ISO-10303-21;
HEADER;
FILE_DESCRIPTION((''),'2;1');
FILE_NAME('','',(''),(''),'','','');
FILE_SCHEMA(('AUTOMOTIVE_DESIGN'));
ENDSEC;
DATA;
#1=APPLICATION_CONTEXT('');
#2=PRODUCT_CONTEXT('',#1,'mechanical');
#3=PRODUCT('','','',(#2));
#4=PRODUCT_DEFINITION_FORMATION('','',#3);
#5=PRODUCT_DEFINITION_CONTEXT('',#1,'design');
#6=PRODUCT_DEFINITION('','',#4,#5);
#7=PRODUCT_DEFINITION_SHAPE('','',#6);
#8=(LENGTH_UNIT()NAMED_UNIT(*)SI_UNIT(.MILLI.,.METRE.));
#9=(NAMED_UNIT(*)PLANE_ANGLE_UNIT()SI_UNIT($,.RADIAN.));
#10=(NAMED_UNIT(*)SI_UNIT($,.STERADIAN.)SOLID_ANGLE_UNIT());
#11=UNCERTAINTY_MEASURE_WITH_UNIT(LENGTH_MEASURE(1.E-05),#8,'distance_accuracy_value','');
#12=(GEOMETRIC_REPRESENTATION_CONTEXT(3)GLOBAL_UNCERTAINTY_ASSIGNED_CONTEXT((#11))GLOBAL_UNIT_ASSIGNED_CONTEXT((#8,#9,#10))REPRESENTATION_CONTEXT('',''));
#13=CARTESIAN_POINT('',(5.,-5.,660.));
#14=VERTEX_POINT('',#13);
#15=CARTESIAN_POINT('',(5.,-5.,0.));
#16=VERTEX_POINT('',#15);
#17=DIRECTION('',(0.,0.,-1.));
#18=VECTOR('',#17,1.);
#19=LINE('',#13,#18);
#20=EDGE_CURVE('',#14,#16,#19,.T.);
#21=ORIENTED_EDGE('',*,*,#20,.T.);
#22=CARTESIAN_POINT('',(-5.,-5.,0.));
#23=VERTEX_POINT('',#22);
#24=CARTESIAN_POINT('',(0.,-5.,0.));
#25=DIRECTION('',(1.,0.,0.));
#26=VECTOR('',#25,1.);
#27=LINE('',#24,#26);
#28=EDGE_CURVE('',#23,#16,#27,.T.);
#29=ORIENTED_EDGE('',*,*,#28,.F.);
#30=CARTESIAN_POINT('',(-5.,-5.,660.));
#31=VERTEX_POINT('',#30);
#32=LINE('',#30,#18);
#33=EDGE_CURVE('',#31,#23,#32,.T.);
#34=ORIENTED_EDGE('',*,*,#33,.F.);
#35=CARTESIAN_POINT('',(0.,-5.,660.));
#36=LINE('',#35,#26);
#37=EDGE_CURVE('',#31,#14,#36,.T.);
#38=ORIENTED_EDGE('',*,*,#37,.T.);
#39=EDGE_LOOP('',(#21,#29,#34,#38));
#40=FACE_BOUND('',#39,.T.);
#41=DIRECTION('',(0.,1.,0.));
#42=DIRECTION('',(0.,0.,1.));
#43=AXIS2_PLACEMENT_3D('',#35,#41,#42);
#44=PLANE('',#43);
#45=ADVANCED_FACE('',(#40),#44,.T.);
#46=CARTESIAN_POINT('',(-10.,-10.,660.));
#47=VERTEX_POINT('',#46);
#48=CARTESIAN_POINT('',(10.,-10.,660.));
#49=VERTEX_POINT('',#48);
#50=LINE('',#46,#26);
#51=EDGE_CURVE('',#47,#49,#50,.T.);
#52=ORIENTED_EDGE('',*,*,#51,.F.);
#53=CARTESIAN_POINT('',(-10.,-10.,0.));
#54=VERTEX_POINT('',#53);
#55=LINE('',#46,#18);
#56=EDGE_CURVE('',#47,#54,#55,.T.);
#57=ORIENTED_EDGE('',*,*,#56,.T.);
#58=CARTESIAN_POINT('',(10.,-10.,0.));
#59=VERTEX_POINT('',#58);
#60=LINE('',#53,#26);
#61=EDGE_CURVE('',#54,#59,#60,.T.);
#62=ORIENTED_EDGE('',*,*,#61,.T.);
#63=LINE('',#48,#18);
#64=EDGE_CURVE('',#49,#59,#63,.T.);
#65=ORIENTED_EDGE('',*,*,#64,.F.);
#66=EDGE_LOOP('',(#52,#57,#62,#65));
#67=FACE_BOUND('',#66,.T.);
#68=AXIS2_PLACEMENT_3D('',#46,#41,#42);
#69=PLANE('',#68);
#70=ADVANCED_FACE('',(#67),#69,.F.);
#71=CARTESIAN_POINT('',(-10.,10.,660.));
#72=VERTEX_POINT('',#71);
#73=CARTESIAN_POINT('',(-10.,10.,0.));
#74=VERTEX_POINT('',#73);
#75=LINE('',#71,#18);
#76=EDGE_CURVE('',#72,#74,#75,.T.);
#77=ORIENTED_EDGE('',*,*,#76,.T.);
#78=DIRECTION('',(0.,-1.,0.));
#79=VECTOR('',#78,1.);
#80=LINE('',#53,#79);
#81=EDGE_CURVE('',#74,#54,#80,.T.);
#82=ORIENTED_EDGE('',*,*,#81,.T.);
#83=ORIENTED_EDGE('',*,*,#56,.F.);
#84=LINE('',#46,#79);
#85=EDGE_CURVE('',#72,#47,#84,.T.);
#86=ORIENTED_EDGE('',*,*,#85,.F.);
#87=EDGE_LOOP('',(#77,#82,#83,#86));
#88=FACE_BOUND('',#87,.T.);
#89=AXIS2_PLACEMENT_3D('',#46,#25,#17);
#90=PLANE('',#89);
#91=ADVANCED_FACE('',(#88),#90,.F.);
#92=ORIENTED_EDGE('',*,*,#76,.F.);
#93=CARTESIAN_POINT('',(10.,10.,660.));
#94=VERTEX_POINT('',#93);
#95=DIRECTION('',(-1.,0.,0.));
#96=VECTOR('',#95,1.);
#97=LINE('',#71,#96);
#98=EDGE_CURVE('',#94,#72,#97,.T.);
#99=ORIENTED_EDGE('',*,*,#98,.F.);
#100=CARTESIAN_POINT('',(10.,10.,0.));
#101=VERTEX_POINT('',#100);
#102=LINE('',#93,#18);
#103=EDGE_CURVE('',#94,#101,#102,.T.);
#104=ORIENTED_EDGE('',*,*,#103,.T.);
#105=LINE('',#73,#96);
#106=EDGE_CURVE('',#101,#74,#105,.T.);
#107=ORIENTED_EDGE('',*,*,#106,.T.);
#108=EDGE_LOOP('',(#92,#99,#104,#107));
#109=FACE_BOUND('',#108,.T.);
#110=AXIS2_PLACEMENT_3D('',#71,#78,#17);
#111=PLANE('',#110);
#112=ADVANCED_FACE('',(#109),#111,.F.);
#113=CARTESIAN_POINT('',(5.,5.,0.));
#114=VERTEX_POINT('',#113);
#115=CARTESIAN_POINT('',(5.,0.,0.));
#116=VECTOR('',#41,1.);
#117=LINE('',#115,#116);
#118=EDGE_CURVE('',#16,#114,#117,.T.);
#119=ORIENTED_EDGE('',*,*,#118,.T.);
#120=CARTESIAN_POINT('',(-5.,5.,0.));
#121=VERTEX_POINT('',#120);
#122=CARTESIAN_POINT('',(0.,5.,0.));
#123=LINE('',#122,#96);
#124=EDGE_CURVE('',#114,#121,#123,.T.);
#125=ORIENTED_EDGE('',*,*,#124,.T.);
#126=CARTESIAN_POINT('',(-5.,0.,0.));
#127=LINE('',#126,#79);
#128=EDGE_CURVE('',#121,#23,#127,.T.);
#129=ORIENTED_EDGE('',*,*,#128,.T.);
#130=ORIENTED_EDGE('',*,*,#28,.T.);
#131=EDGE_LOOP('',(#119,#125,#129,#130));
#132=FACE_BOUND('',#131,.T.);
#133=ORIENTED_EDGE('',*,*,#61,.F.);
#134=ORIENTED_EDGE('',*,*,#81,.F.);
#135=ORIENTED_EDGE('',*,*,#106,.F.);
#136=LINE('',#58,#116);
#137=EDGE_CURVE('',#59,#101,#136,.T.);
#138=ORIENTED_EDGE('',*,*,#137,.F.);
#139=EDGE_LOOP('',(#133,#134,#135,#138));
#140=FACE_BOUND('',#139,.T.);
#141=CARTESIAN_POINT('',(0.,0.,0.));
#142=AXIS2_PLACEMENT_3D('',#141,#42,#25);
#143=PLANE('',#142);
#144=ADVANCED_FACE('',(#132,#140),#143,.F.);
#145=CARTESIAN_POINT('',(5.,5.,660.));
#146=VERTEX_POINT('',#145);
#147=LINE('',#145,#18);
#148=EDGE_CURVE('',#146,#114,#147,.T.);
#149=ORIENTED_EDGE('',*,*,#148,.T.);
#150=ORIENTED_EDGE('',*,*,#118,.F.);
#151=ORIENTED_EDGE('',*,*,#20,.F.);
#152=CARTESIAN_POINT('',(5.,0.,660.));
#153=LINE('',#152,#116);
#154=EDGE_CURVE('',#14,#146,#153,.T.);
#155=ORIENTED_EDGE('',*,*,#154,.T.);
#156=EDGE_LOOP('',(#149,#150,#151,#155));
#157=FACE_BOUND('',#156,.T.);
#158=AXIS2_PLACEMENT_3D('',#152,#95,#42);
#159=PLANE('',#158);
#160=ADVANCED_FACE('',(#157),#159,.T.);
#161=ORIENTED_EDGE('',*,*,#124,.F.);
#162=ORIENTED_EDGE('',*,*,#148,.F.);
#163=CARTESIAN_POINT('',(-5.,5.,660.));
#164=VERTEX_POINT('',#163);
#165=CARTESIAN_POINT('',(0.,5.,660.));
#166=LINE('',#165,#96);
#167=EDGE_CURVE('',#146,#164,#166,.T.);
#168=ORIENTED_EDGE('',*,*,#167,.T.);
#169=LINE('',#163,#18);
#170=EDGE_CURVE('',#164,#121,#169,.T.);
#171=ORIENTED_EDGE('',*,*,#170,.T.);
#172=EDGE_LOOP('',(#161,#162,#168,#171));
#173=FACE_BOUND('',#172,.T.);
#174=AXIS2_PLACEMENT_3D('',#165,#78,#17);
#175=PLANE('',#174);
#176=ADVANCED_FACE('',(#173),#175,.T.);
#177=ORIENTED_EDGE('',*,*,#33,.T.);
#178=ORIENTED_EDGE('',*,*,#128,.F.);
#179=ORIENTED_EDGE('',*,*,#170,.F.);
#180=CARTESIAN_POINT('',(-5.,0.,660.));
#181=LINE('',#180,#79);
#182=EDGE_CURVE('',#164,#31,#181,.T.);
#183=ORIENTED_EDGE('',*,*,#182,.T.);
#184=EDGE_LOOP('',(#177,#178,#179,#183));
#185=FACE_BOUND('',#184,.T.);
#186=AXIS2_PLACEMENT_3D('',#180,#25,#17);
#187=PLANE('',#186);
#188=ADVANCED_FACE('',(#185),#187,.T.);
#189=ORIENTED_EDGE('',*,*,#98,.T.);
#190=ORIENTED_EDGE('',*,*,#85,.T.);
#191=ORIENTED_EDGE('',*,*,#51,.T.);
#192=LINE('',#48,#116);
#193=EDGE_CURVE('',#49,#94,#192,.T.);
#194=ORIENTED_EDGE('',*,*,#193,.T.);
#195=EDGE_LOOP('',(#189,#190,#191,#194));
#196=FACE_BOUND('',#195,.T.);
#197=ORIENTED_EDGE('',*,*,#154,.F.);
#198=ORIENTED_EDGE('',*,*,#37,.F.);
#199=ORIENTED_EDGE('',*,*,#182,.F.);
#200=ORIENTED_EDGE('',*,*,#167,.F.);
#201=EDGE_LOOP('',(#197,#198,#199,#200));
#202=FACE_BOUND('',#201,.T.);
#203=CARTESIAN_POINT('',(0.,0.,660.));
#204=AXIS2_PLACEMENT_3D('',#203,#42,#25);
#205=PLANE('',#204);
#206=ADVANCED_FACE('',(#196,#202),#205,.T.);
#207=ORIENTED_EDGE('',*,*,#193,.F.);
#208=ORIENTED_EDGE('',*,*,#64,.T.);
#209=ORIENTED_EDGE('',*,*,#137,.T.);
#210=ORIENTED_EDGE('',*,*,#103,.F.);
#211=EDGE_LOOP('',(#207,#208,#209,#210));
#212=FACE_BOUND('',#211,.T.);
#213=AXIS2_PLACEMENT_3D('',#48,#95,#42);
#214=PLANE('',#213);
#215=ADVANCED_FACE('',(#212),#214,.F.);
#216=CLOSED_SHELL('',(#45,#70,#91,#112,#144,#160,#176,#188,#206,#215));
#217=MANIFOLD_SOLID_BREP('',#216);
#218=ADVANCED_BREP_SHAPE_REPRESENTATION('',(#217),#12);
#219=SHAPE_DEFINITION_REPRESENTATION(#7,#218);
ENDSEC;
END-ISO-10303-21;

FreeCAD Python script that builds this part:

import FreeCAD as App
import Part
import Sketcher
from FreeCAD import Vector
Q = App.Units.Quantity


def add_polygon(sketch, points):
    """Adds a closed chain of lines whose ends are joined by coincident constraints."""
    first, n = sketch.GeometryCount, len(points)
    for a, b in zip(points, points[1:] + points[:1]):
        sketch.addGeometry(Part.LineSegment(App.Vector(*a, 0), App.Vector(*b, 0)), False)
    for i in range(n):
        sketch.addConstraint(Sketcher.Constraint("Coincident", first + i, 2, first + (i + 1) % n, 1))

doc = App.newDocument("Part")
params = doc.addObject("Spreadsheet::Sheet", "Params")
for row, (alias, value) in enumerate([
    ("sketch1_width", "20 mm"),
    ("sketch1_width2", "10 mm"),
    ("pad1_length", "660 mm"),
], start=1):
    params.set(f"A{row}", alias)
    params.set(f"B{row}", "=" + value)
    params.setAlias(f"B{row}", alias)

body = doc.addObject("PartDesign::Body", "Body")

# Sketch on XY plane
sketch1 = doc.addObject("Sketcher::SketchObject", "Sketch")
body.addObject(sketch1)
sketch1.AttachmentSupport = (doc.XY_Plane, [""])
sketch1.MapMode = "FlatFace"
add_polygon(sketch1, [(-10, 10), (-10, -10), (10, -10), (10, 10)])  # lines 0-3
add_polygon(sketch1, [(5, -5), (-5, -5), (-5, 5), (5, 5)])  # lines 4-7
sketch1.addConstraint([
    Sketcher.Constraint("Vertical", 0),
    Sketcher.Constraint("Horizontal", 1),
    Sketcher.Constraint("Vertical", 2),
    Sketcher.Constraint("Horizontal", 3),
    Sketcher.Constraint("Horizontal", 4),
    Sketcher.Constraint("Vertical", 5),
    Sketcher.Constraint("Horizontal", 6),
    Sketcher.Constraint("Vertical", 7),
    Sketcher.Constraint("Symmetric", 0, 2, 2, 2, -1, 1),
    Sketcher.Constraint("Symmetric", 4, 2, 6, 2, -1, 1),
    Sketcher.Constraint("Equal", 3, 0),
    Sketcher.Constraint("Equal", 6, 5),
    Sketcher.Constraint("DistanceX", 1, 1, 1, 2, Q("20 mm")),
    Sketcher.Constraint("DistanceX", 4, 2, 4, 1, Q("10 mm")),
])
sketch1.setExpression("Constraints[20]", "Params.sketch1_width")
sketch1.setExpression("Constraints[21]", "Params.sketch1_width2")
pad1 = doc.addObject("PartDesign::Pad", "Pad")
body.addObject(pad1)
pad1.Profile = sketch1
pad1.setExpression("Length", "Params.pad1_length")

doc.recompute()
